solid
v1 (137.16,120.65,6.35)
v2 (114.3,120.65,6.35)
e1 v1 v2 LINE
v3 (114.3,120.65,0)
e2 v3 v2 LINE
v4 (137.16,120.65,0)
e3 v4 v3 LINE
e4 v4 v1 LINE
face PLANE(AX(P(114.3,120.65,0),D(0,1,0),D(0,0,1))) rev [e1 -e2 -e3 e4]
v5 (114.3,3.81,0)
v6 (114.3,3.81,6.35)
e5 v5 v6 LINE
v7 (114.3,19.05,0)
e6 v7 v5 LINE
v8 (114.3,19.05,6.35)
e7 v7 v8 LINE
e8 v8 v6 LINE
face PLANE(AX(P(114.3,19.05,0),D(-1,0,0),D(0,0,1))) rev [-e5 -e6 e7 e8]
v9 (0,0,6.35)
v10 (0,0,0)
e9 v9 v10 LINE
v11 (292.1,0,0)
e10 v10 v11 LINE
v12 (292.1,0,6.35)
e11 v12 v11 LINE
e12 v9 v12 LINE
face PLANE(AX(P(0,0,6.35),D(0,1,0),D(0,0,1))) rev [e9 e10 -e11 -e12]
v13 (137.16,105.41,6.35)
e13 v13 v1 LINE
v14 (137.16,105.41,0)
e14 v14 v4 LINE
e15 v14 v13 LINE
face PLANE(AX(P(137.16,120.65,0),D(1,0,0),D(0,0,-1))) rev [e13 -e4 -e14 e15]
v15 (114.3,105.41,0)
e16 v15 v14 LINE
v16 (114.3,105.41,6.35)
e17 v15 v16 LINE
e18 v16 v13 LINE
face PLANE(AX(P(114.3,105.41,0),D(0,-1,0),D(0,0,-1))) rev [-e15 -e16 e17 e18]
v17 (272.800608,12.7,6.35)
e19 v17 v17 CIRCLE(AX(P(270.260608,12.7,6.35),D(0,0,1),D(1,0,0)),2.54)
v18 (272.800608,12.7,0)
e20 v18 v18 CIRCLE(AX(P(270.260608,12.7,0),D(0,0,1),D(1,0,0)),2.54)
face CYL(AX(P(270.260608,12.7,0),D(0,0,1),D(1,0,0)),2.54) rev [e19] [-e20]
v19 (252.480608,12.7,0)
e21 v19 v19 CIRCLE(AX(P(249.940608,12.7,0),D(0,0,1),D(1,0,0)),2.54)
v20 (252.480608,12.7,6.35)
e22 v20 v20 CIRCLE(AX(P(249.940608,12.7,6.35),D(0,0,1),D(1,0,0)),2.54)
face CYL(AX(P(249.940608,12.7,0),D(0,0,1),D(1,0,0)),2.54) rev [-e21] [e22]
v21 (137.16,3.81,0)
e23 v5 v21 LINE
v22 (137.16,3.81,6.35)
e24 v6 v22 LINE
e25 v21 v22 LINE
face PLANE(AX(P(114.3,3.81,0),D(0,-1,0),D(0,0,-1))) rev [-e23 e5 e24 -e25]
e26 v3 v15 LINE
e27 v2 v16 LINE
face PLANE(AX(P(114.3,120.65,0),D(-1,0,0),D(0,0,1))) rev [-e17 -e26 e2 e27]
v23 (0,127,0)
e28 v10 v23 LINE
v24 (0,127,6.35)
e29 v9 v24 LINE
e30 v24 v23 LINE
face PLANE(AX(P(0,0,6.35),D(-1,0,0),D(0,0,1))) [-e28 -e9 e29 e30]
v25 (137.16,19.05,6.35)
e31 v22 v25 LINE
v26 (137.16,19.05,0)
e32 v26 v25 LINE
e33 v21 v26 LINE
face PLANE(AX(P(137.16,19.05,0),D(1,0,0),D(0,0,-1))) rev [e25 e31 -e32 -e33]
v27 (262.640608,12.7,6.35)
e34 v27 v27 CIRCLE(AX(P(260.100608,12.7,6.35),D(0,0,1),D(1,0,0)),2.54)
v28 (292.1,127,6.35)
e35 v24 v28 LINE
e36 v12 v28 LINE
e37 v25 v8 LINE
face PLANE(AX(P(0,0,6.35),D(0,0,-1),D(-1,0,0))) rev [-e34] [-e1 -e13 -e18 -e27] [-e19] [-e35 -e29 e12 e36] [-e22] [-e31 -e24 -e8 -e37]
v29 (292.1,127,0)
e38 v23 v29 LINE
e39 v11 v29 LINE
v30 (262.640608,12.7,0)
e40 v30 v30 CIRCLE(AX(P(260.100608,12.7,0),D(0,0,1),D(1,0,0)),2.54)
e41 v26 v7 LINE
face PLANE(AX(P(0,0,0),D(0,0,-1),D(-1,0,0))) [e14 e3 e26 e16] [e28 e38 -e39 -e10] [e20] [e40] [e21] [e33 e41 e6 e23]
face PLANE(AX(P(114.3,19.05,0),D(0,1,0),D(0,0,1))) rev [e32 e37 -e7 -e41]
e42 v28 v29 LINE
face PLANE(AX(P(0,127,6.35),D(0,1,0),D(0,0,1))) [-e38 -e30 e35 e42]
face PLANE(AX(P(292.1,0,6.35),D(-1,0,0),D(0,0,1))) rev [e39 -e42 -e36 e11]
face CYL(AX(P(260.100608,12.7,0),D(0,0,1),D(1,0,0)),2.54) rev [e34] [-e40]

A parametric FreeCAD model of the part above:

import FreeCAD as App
import Part
import Sketcher

V = App.Vector
Q = App.Units.Quantity

doc = App.newDocument("Part")
body = doc.addObject("PartDesign::Body", "Body")

# Sketch on XY plane
sketch1 = body.newObject("Sketcher::SketchObject", "Sketch")
sketch1.AttachmentSupport = (doc.getObject("XY_Plane"), [""])
sketch1.MapMode = "FlatFace"
sketch1.addGeometry(Part.LineSegment(V(0, 127, 0), V(0, 0, 0)), False)
sketch1.addGeometry(Part.LineSegment(V(0, 0, 0), V(292, 0, 0)), False)
sketch1.addGeometry(Part.LineSegment(V(292, 0, 0), V(292, 127, 0)), False)
sketch1.addGeometry(Part.LineSegment(V(292, 127, 0), V(0, 127, 0)), False)
sketch1.addConstraint(Sketcher.Constraint("Coincident", 0, 2, 1, 1))
sketch1.addConstraint(Sketcher.Constraint("Coincident", 1, 2, 2, 1))
sketch1.addConstraint(Sketcher.Constraint("Coincident", 2, 2, 3, 1))
sketch1.addConstraint(Sketcher.Constraint("Coincident", 3, 2, 0, 1))
sketch1.addConstraint(Sketcher.Constraint("Vertical", 0))
sketch1.addConstraint(Sketcher.Constraint("Horizontal", 1))
sketch1.addConstraint(Sketcher.Constraint("Vertical", 2))
sketch1.addConstraint(Sketcher.Constraint("Horizontal", 3))
sketch1.addConstraint(Sketcher.Constraint("Coincident", 0, 2, -1, 1))
sketch1.addConstraint(Sketcher.Constraint("DistanceY", 0, 2, 0, 1, Q("5 in")))
sketch1.addConstraint(Sketcher.Constraint("DistanceX", 1, 1, 1, 2, Q("11.5 in")))
pad1 = body.newObject("PartDesign::Pad", "Pad")
pad1.Profile = sketch1
pad1.Length = Q("0.25 in")

# Sketch on XY plane
sketch2 = body.newObject("Sketcher::SketchObject", "Sketch001")
sketch2.AttachmentSupport = (doc.getObject("XY_Plane"), [""])
sketch2.MapMode = "FlatFace"
sketch2.AttachmentOffset = App.Placement(V(0, 0, 0.25 * 25.4), App.Rotation())
sketch2.addGeometry(Part.LineSegment(V(114, 19, 0), V(114, 4, 0)), False)
sketch2.addGeometry(Part.LineSegment(V(114, 4, 0), V(137, 4, 0)), False)
sketch2.addGeometry(Part.LineSegment(V(137, 4, 0), V(137, 19, 0)), False)
sketch2.addGeometry(Part.LineSegment(V(137, 19, 0), V(114, 19, 0)), False)
sketch2.addConstraint(Sketcher.Constraint("Coincident", 0, 2, 1, 1))
sketch2.addConstraint(Sketcher.Constraint("Coincident", 1, 2, 2, 1))
sketch2.addConstraint(Sketcher.Constraint("Coincident", 2, 2, 3, 1))
sketch2.addConstraint(Sketcher.Constraint("Coincident", 3, 2, 0, 1))
sketch2.addConstraint(Sketcher.Constraint("Vertical", 0))
sketch2.addConstraint(Sketcher.Constraint("Horizontal", 1))
sketch2.addConstraint(Sketcher.Constraint("Vertical", 2))
sketch2.addConstraint(Sketcher.Constraint("Horizontal", 3))
sketch2.addConstraint(Sketcher.Constraint("DistanceX", 1, 1, 1, 2, Q("0.9 in")))
sketch2.addConstraint(Sketcher.Constraint("DistanceY", 0, 2, 0, 1, Q("0.6 in")))
sketch2.addConstraint(Sketcher.Constraint("DistanceX", -1, 1, 0, 2, Q("4.5 in")))
sketch2.addConstraint(Sketcher.Constraint("DistanceY", -1, 1, 0, 2, Q("0.15 in")))
pocket1 = body.newObject("PartDesign::Pocket", "Pocket")
pocket1.Profile = sketch2
pocket1.Length = Q("0.25 in")
doc.recompute()

linearpattern = body.newObject("PartDesign::LinearPattern", "LinearPattern")
linearpattern.Originals = [pocket1]
linearpattern.Direction = (doc.getObject("Y_Axis"), [""])
linearpattern.Mode = "offset"
linearpattern.Offset = Q("4 in")
linearpattern.Occurrences = 2
body.Tip = linearpattern

# Sketch on XY plane
sketch3 = body.newObject("Sketcher::SketchObject", "Sketch002")
sketch3.AttachmentSupport = (doc.getObject("XY_Plane"), [""])
sketch3.MapMode = "FlatFace"
sketch3.AttachmentOffset = App.Placement(V(0, 0, 0.25 * 25.4), App.Rotation())
sketch3.addGeometry(Part.Circle(V(249.9, 12.7, 0), V(0, 0, 1), 2.5), False)
sketch3.addGeometry(Part.Circle(V(260.1, 12.7, 0), V(0, 0, 1), 2.5), False)
sketch3.addGeometry(Part.Circle(V(270.3, 12.7, 0), V(0, 0, 1), 2.5), False)
sketch3.addConstraint(Sketcher.Constraint("Equal", 0, 1))
sketch3.addConstraint(Sketcher.Constraint("Equal", 1, 2))
sketch3.addConstraint(Sketcher.Constraint("Horizontal", 0, 3, 1, 3))
sketch3.addConstraint(Sketcher.Constraint("Horizontal", 1, 3, 2, 3))
sketch3.addConstraint(Sketcher.Constraint("Diameter", 0, Q("0.2 in")))
sketch3.addConstraint(Sketcher.Constraint("DistanceY", -1, 1, 0, 3, Q("0.5 in")))
sketch3.addConstraint(Sketcher.Constraint("DistanceX", 0, 3, 1, 3, Q("0.4 in")))
sketch3.addConstraint(Sketcher.Constraint("DistanceX", 1, 3, 2, 3, Q("0.4 in")))
sketch3.addConstraint(Sketcher.Constraint("DistanceX", -1, 1, 0, 3, 249.940608))
pocket2 = body.newObject("PartDesign::Pocket", "Pocket001")
pocket2.Profile = sketch3
pocket2.Type = "ThroughAll"

doc.recompute()
